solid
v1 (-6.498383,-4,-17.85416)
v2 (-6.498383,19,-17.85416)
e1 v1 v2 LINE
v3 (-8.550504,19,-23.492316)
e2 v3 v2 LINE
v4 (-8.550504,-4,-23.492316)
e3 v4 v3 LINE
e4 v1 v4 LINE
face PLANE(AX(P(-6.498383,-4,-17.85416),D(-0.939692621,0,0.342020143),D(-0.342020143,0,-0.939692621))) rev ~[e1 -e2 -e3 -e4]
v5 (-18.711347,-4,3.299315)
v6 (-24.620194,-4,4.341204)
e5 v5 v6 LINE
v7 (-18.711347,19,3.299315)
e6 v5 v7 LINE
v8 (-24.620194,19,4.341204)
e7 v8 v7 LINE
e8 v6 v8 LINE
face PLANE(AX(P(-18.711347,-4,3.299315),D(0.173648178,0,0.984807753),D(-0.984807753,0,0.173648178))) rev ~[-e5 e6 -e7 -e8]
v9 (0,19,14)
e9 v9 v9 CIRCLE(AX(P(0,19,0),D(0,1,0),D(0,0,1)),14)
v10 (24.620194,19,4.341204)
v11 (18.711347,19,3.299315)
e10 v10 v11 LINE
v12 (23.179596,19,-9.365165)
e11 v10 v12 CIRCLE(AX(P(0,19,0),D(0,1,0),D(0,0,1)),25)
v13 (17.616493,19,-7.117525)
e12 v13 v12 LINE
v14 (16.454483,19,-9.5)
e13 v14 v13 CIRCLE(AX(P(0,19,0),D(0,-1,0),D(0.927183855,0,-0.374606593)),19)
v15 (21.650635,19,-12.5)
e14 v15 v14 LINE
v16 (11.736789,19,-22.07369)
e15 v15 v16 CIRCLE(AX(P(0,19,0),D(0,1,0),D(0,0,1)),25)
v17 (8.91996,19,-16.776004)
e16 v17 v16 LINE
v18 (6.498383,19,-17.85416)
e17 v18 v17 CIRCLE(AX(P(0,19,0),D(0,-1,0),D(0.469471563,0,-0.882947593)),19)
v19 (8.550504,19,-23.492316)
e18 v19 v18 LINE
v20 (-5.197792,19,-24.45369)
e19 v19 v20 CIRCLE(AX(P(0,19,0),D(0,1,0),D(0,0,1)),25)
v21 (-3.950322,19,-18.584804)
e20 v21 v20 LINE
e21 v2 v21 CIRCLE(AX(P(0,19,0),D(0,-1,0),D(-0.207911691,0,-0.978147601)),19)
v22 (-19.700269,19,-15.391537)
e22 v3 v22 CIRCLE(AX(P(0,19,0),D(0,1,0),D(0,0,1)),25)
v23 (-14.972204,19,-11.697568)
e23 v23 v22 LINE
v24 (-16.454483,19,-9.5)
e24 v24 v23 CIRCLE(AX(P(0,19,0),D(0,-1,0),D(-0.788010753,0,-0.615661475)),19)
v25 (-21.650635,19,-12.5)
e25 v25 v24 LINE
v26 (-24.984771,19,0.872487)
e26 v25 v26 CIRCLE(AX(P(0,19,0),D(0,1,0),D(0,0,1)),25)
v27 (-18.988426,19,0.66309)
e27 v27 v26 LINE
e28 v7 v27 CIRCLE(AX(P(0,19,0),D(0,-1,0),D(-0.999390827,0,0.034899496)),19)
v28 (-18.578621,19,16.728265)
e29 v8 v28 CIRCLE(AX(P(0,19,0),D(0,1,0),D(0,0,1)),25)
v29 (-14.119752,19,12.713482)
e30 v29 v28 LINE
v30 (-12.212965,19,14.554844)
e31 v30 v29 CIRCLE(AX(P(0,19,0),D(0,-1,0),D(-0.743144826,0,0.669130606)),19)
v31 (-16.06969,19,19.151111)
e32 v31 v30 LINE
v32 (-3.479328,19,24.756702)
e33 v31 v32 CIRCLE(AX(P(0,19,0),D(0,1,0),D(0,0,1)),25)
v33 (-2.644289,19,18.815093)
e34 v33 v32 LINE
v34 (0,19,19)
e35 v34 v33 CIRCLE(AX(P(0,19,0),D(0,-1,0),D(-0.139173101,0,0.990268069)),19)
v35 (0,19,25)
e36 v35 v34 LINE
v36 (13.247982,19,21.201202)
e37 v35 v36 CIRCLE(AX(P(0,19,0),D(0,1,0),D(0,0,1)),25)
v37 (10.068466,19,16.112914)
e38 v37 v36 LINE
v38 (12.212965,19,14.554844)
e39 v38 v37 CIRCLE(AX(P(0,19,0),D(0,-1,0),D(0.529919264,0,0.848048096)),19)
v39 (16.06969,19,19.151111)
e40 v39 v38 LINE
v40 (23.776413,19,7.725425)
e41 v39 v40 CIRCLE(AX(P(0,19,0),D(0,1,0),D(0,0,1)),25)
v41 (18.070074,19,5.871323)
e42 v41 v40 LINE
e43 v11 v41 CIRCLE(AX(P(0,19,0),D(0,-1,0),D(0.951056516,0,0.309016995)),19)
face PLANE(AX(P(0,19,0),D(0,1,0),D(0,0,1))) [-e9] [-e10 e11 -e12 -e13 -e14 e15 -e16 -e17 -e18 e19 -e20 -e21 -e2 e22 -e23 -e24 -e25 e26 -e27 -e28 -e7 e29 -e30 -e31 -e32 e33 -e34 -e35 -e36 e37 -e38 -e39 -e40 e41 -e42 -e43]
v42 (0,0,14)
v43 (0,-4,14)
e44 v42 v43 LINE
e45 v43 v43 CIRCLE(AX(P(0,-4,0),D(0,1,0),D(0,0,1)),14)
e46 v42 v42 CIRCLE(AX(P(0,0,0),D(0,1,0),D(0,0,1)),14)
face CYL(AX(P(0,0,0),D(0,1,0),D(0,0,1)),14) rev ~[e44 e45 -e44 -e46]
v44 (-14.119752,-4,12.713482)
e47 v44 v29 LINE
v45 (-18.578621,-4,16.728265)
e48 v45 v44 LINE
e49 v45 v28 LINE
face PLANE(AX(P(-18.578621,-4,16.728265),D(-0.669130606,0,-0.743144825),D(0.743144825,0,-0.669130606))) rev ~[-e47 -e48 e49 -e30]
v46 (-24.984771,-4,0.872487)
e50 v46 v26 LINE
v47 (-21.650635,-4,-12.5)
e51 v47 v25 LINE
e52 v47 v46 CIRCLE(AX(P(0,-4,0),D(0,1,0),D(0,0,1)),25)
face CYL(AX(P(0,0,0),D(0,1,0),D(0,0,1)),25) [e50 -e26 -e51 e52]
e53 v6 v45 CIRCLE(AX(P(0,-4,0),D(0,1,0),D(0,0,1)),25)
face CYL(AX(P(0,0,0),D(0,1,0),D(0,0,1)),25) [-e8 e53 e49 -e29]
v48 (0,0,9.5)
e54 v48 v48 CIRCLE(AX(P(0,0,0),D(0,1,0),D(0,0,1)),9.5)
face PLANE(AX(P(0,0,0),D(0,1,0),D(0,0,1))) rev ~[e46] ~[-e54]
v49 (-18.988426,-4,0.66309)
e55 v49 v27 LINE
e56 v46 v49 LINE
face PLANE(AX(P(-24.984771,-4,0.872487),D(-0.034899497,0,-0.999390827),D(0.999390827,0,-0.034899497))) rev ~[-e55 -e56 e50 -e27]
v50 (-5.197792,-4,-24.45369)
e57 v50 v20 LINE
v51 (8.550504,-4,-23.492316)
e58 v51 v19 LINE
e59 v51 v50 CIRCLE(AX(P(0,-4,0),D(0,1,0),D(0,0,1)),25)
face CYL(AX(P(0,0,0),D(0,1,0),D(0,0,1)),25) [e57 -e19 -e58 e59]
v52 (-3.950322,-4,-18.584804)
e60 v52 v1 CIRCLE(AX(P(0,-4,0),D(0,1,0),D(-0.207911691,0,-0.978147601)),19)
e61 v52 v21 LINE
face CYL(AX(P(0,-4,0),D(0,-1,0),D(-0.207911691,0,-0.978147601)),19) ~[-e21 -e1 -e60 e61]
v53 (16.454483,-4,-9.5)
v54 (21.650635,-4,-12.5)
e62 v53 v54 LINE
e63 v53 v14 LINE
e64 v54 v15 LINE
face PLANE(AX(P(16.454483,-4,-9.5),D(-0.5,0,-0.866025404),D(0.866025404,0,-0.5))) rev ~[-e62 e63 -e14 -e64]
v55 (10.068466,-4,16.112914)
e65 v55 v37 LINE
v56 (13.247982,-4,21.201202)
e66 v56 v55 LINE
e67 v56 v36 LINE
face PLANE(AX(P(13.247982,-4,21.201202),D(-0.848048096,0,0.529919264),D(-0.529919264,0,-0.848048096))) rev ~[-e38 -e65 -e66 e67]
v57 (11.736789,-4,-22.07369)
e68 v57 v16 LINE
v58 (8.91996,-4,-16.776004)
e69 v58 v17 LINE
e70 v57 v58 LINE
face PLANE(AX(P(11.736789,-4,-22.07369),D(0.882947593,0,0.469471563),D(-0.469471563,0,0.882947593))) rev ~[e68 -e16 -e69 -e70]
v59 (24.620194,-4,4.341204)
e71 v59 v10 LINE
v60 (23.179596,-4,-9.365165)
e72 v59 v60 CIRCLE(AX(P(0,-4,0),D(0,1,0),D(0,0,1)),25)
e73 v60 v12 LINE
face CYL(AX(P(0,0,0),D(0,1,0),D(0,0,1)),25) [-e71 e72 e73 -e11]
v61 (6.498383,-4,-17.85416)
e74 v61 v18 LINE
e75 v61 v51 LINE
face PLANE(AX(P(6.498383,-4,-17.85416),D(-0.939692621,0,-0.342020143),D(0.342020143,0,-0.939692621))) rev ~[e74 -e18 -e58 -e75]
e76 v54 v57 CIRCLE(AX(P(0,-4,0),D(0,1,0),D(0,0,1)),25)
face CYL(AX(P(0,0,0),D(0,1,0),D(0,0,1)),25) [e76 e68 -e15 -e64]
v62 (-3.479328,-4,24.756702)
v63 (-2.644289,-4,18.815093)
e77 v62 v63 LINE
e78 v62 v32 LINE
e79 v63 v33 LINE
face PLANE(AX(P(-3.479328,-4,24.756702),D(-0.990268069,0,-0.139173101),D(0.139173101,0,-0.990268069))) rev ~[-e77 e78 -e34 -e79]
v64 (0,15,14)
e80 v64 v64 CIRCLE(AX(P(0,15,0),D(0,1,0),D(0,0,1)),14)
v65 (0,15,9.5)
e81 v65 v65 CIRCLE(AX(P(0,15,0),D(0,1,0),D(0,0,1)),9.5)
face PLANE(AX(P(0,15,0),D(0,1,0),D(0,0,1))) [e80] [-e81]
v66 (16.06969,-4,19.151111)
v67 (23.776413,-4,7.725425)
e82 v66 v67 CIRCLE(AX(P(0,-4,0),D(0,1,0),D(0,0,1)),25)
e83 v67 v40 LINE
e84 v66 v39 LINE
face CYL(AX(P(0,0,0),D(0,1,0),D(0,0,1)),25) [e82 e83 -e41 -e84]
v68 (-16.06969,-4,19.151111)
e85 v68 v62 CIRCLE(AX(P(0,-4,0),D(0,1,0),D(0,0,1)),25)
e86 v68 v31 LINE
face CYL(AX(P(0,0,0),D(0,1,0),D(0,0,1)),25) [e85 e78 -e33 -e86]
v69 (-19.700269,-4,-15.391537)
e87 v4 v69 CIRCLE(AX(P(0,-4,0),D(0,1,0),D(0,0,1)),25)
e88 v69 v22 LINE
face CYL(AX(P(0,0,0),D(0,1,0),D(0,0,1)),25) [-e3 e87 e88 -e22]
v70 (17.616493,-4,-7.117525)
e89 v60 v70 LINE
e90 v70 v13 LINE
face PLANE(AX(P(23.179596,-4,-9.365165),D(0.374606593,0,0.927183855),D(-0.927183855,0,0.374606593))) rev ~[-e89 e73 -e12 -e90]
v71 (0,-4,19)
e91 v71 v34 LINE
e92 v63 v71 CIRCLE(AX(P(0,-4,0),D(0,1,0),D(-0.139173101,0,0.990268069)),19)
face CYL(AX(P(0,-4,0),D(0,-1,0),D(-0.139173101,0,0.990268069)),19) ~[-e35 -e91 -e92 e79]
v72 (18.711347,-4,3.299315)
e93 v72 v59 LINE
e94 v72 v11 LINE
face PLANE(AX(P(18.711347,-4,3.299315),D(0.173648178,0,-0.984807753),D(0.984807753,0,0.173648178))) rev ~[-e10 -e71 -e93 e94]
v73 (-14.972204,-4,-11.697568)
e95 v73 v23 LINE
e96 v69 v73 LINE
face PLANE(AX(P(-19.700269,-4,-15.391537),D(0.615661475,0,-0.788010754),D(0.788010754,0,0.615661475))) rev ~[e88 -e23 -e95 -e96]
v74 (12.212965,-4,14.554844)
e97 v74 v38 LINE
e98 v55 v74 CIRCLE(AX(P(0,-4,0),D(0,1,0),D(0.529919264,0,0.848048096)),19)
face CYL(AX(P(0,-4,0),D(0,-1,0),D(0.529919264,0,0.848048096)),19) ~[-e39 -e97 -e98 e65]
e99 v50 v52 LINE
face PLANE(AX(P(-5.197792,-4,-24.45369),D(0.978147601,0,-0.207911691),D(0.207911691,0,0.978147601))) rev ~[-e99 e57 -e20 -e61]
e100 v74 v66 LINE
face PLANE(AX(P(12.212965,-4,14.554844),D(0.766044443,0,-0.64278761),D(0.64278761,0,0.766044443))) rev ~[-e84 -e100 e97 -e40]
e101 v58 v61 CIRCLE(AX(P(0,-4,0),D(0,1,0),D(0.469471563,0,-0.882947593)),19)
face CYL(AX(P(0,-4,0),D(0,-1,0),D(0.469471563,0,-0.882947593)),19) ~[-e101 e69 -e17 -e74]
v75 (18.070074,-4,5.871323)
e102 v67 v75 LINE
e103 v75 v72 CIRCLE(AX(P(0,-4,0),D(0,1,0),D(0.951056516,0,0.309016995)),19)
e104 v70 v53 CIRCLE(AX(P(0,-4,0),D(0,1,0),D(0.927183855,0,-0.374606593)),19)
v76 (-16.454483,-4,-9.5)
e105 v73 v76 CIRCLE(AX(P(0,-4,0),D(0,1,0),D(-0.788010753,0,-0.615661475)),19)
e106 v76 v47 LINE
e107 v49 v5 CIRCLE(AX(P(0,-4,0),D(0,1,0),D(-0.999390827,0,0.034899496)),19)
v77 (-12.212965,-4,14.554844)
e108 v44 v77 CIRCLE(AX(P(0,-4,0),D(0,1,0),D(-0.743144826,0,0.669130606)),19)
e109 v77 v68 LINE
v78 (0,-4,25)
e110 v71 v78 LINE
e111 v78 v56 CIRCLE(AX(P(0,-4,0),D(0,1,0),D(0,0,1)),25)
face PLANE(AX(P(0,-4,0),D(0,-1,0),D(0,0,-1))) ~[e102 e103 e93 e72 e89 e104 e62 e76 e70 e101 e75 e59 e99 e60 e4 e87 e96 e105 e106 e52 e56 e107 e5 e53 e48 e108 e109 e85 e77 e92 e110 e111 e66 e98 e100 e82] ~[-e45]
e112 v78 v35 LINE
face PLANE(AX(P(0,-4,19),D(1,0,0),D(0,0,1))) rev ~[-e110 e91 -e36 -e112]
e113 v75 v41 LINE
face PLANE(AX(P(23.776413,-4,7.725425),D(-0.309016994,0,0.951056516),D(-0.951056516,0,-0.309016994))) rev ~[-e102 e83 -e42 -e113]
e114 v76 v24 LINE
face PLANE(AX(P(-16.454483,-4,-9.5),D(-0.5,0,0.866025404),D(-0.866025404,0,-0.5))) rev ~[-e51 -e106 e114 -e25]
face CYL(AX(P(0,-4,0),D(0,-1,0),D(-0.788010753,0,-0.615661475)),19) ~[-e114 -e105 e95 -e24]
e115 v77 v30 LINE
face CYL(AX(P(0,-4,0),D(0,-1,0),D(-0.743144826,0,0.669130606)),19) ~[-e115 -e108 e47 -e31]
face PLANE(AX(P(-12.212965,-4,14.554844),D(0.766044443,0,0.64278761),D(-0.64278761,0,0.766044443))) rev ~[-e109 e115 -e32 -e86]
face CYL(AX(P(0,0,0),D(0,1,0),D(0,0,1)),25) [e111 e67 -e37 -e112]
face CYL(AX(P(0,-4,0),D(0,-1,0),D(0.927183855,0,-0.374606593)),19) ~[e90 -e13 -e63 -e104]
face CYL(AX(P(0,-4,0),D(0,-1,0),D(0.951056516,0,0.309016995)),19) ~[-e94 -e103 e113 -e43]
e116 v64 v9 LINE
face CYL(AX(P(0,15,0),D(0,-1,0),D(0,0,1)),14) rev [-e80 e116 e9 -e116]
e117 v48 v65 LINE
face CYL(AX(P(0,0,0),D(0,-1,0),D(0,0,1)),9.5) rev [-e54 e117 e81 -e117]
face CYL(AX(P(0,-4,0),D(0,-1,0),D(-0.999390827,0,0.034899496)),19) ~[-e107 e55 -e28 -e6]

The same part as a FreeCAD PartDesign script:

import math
import FreeCAD as App
import Part
import Sketcher

V = App.Vector
Q = App.Units.Quantity

doc = App.newDocument("Part")
body = doc.addObject("PartDesign::Body", "Body")

# Sketch on XZ plane
sketch1 = doc.addObject("Sketcher::SketchObject", "Sketch")
body.addObject(sketch1)
sketch1.AttachmentSupport = (doc.XZ_Plane, [""])
sketch1.MapMode = "FlatFace"
sketch1.addGeometry([
    Part.Circle(V(0, 0, 0), V(0, 0, 1), 25),
    Part.Circle(V(0, 0, 0), V(0, 0, 1), 9.5),
], False)
sketch1.addConstraint([
    Sketcher.Constraint("Coincident", 0, 3, -1, 1),
    Sketcher.Constraint("Coincident", 1, 3, -1, 1),
    Sketcher.Constraint("Diameter", 0, Q("50 mm")),
    Sketcher.Constraint("Diameter", 1, Q("19 mm")),
])
pad1 = doc.addObject("PartDesign::Pad", "Pad")
body.addObject(pad1)
pad1.Profile = sketch1
pad1.Length = 15
pad1.Reversed = True

# Sketch on XZ plane
sketch2 = doc.addObject("Sketcher::SketchObject", "Sketch001")
body.addObject(sketch2)
sketch2.AttachmentSupport = (doc.XZ_Plane, [""])
sketch2.MapMode = "FlatFace"
sketch2.AttachmentOffset = App.Placement(V(0, 0, -15), App.Rotation())
sketch2.addGeometry([
    Part.Circle(V(0, 0, 0), V(0, 0, 1), 25),
    Part.Circle(V(0, 0, 0), V(0, 0, 1), 14),
], False)
sketch2.addConstraint([
    Sketcher.Constraint("Coincident", 0, 3, -1, 1),
    Sketcher.Constraint("Coincident", 1, 3, -1, 1),
    Sketcher.Constraint("Diameter", 0, Q("50 mm")),
    Sketcher.Constraint("Diameter", 1, Q("28 mm")),
])
pad2 = doc.addObject("PartDesign::Pad", "Pad001")
body.addObject(pad2)
pad2.Profile = sketch2
pad2.Length = 4
pad2.Reversed = True
doc.recompute()

datumplane = doc.addObject("PartDesign::Plane", "DatumPlane")
body.addObject(datumplane)
datumplane.AttachmentSupport = (doc.XZ_Plane, [""])
datumplane.MapMode = "FlatFace"
datumplane.AttachmentOffset = App.Placement(V(0, 0, -7.5), App.Rotation())
mirrored = doc.addObject("PartDesign::Mirrored", "Mirrored")
body.addObject(mirrored)
mirrored.Originals = [pad2]
mirrored.MirrorPlane = (datumplane, [""])
body.Tip = mirrored

# Sketch on XZ plane
sketch3 = doc.addObject("Sketcher::SketchObject", "Sketch002")
body.addObject(sketch3)
sketch3.AttachmentSupport = (doc.XZ_Plane, [""])
sketch3.MapMode = "FlatFace"
sketch3.AttachmentOffset = App.Placement(V(0, 0, 4), App.Rotation())
sketch3.addGeometry([
    Part.LineSegment(V(-3.479328, 24.756702, 0), V(-2.644289, 18.815093, 0)),
    Part.ArcOfCircle(Part.Circle(V(0, 0, 0), V(0, 0, 1), 19), math.radians(90), math.radians(98)),
    Part.LineSegment(V(0, 19, 0), V(0, 25, 0)),
    Part.ArcOfCircle(Part.Circle(V(0, 0, 0), V(0, 0, 1), 25), math.radians(90), math.radians(98)),
], False)
sketch3.addConstraint([
    Sketcher.Constraint("Coincident", 0, 2, 1, 2),
    Sketcher.Constraint("Coincident", 1, 1, 2, 1),
    Sketcher.Constraint("Coincident", 2, 2, 3, 1),
    Sketcher.Constraint("Coincident", 3, 2, 0, 1),
    Sketcher.Constraint("Vertical", 2),
    Sketcher.Constraint("Coincident", 1, 3, -1, 1),
    Sketcher.Constraint("Coincident", 3, 3, -1, 1),
    Sketcher.Constraint("PointOnObject", 1, 1, -2),
    Sketcher.Constraint("Radius", 1, Q("19 mm")),
    Sketcher.Constraint("Radius", 3, Q("25 mm")),
    Sketcher.Constraint("Angle", 0, Q("-82 deg")),
    Sketcher.Constraint("DistanceY", -1, 1, 3, 2, Q("24.756702 mm")),
])
pocket1 = doc.addObject("PartDesign::Pocket", "Pocket")
body.addObject(pocket1)
pocket1.Profile = sketch3
pocket1.Type = "ThroughAll"
doc.recompute()

polarpattern = doc.addObject("PartDesign::PolarPattern", "PolarPattern")
body.addObject(polarpattern)
polarpattern.Originals = [pocket1]
polarpattern.Axis = (doc.Y_Axis, [""])
polarpattern.Angle = 360
polarpattern.Occurrences = 9
body.Tip = polarpattern

doc.recompute()
